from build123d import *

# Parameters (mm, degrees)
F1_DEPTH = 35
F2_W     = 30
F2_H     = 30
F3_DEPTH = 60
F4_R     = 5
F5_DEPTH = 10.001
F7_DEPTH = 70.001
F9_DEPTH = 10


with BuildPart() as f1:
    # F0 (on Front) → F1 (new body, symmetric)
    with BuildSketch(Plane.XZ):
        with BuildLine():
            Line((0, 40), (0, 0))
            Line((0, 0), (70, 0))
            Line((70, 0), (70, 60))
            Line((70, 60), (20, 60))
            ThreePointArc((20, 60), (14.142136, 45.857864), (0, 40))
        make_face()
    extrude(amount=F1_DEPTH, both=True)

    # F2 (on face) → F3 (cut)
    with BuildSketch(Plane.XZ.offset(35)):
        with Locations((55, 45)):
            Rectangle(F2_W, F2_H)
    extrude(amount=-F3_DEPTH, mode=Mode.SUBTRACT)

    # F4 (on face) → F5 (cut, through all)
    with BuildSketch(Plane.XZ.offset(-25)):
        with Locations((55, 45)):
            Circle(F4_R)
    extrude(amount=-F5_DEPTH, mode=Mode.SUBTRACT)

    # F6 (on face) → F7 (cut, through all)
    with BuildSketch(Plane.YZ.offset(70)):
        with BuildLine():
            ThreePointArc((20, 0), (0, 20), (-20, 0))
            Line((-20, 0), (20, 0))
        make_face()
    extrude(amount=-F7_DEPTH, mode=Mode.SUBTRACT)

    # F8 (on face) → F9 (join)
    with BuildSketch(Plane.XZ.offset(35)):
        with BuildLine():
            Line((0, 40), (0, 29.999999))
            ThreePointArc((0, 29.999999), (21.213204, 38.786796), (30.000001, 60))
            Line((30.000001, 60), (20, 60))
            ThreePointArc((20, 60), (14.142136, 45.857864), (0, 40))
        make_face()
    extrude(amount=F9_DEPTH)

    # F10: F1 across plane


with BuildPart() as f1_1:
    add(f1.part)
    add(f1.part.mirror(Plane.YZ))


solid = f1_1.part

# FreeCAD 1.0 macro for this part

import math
import FreeCAD as App
import Part
import Sketcher
Q = App.Units.Quantity

doc = App.newDocument("Part")
body = doc.addObject("PartDesign::Body", "Body")

sketch1 = body.newObject("Sketcher::SketchObject", "Sketch")
sketch1.AttachmentSupport = (doc.getObject("XZ_Plane"), [""])
sketch1.MapMode = "FlatFace"
sketch1.addGeometry([
    Part.LineSegment(App.Vector(0, 40, 0), App.Vector(0, 0, 0)),
    Part.LineSegment(App.Vector(0, 0, 0), App.Vector(70, 0, 0)),
    Part.LineSegment(App.Vector(70, 0, 0), App.Vector(70, 60, 0)),
    Part.LineSegment(App.Vector(70, 60, 0), App.Vector(20, 60, 0)),
    Part.ArcOfCircle(Part.Circle(App.Vector(0, 60, 0), App.Vector(0, 0, 1), 20), math.radians(-90), math.radians(0)),
], False)
sketch1.addConstraint([
    Sketcher.Constraint("Coincident", 0, 2, 1, 1),
    Sketcher.Constraint("Coincident", 1, 2, 2, 1),
    Sketcher.Constraint("Coincident", 2, 2, 3, 1),
    Sketcher.Constraint("Coincident", 3, 2, 4, 2),
    Sketcher.Constraint("Coincident", 4, 1, 0, 1),
    Sketcher.Constraint("Vertical", 0),
    Sketcher.Constraint("Horizontal", 1),
    Sketcher.Constraint("Vertical", 2),
    Sketcher.Constraint("Horizontal", 3),
    Sketcher.Constraint("Coincident", 0, 2, -1, 1),
    Sketcher.Constraint("PointOnObject", 4, 3, -2),
    Sketcher.Constraint("Horizontal", 4, 3, 2, 2),
    Sketcher.Constraint("Radius", 4, Q("19.999999 mm")),
    Sketcher.Constraint("DistanceX", 1, 1, 1, 2, Q("70 mm")),
    Sketcher.Constraint("DistanceY", 0, 2, 0, 1, Q("40 mm")),
])
pad1 = body.newObject("PartDesign::Pad", "Pad")
pad1.Profile = sketch1
pad1.Length = 70
pad1.Midplane = True

sketch2 = body.newObject("Sketcher::SketchObject", "Sketch001")
sketch2.AttachmentSupport = (doc.getObject("XZ_Plane"), [""])
sketch2.MapMode = "FlatFace"
sketch2.AttachmentOffset = App.Placement(App.Vector(0, 0, 35), App.Rotation())
sketch2.addGeometry([
    Part.LineSegment(App.Vector(40, 60, 0), App.Vector(40, 30, 0)),
    Part.LineSegment(App.Vector(40, 30, 0), App.Vector(70, 30, 0)),
    Part.LineSegment(App.Vector(70, 30, 0), App.Vector(70, 60, 0)),
    Part.LineSegment(App.Vector(70, 60, 0), App.Vector(40, 60, 0)),
], False)
sketch2.addConstraint([
    Sketcher.Constraint("Coincident", 0, 2, 1, 1),
    Sketcher.Constraint("Coincident", 1, 2, 2, 1),
    Sketcher.Constraint("Coincident", 2, 2, 3, 1),
    Sketcher.Constraint("Coincident", 3, 2, 0, 1),
    Sketcher.Constraint("Vertical", 0),
    Sketcher.Constraint("Horizontal", 1),
    Sketcher.Constraint("Vertical", 2),
    Sketcher.Constraint("Horizontal", 3),
    Sketcher.Constraint("Equal", 3, 0),
    Sketcher.Constraint("DistanceX", 1, 1, 1, 2, Q("30 mm")),
    Sketcher.Constraint("DistanceX", -1, 1, 0, 2, Q("40 mm")),
    Sketcher.Constraint("DistanceY", -1, 1, 0, 2, Q("30 mm")),
])
pocket1 = body.newObject("PartDesign::Pocket", "Pocket")
pocket1.Profile = sketch2
pocket1.Length = 60

sketch3 = body.newObject("Sketcher::SketchObject", "Sketch002")
sketch3.AttachmentSupport = (doc.getObject("XZ_Plane"), [""])
sketch3.MapMode = "FlatFace"
sketch3.AttachmentOffset = App.Placement(App.Vector(0, 0, -25), App.Rotation())
sketch3.addGeometry(Part.Circle(App.Vector(55, 45, 0), App.Vector(0, 0, 1), 5), False)
sketch3.addConstraint([
    Sketcher.Constraint("Diameter", 0, Q("10 mm")),
    Sketcher.Constraint("DistanceX", -1, 1, 0, 3, Q("55 mm")),
    Sketcher.Constraint("DistanceY", -1, 1, 0, 3, Q("45 mm")),
])
pocket2 = body.newObject("PartDesign::Pocket", "Pocket001")
pocket2.Profile = sketch3
pocket2.Type = "ThroughAll"

sketch4 = body.newObject("Sketcher::SketchObject", "Sketch003")
sketch4.AttachmentSupport = (doc.getObject("YZ_Plane"), [""])
sketch4.MapMode = "FlatFace"
sketch4.AttachmentOffset = App.Placement(App.Vector(0, 0, 70), App.Rotation())
sketch4.addGeometry([
    Part.ArcOfCircle(Part.Circle(App.Vector(0, 0, 0), App.Vector(0, 0, 1), 20), math.radians(0), math.radians(180)),
    Part.LineSegment(App.Vector(-20, 0, 0), App.Vector(20, 0, 0)),
], False)
sketch4.addConstraint([
    Sketcher.Constraint("Coincident", 0, 1, 1, 2),
    Sketcher.Constraint("Coincident", 1, 1, 0, 2),
    Sketcher.Constraint("Horizontal", 1),
    Sketcher.Constraint("Coincident", 0, 3, -1, 1),
    Sketcher.Constraint("PointOnObject", 0, 1, -1),
    Sketcher.Constraint("Radius", 0, Q("20 mm")),
])
pocket3 = body.newObject("PartDesign::Pocket", "Pocket002")
pocket3.Profile = sketch4
pocket3.Type = "ThroughAll"

sketch5 = body.newObject("Sketcher::SketchObject", "Sketch004")
sketch5.AttachmentSupport = (doc.getObject("XZ_Plane"), [""])
sketch5.MapMode = "FlatFace"
sketch5.AttachmentOffset = App.Placement(App.Vector(0, 0, 35), App.Rotation())
sketch5.addGeometry([
    Part.LineSegment(App.Vector(0, 40, 0), App.Vector(0, 30, 0)),
    Part.ArcOfCircle(Part.Circle(App.Vector(0, 60, 0), App.Vector(0, 0, 1), 30), math.radians(-90), math.radians(0)),
    Part.LineSegment(App.Vector(30, 60, 0), App.Vector(20, 60, 0)),
    Part.ArcOfCircle(Part.Circle(App.Vector(0, 60, 0), App.Vector(0, 0, 1), 20), math.radians(-90), math.radians(0)),
], False)
sketch5.addConstraint([
    Sketcher.Constraint("Coincident", 0, 2, 1, 1),
    Sketcher.Constraint("Coincident", 1, 2, 2, 1),
    Sketcher.Constraint("Coincident", 2, 2, 3, 2),
    Sketcher.Constraint("Coincident", 3, 1, 0, 1),
    Sketcher.Constraint("Vertical", 0),
    Sketcher.Constraint("Horizontal", 2),
    Sketcher.Constraint("Coincident", 3, 3, 1, 3),
    Sketcher.Constraint("PointOnObject", 1, 3, -2),
    Sketcher.Constraint("PointOnObject", 0, 2, -2),
    Sketcher.Constraint("Horizontal", 3, 3, 1, 2),
    Sketcher.Constraint("Radius", 1, Q("30.000001 mm")),
    Sketcher.Constraint("Radius", 3, Q("19.999999 mm")),
    Sketcher.Constraint("DistanceY", -1, 1, 1, 3, Q("60 mm")),
])
pad2 = body.newObject("PartDesign::Pad", "Pad001")
pad2.Profile = sketch5
pad2.Length = 10
body2 = doc.addObject("PartDesign::Body", "Body001")
doc.recompute()

body2.BaseFeature = body
doc.recompute()

mirroring = doc.addObject("Part::Mirroring", "Mirroring")
mirroring.Source = body
mirroring.Base = App.Vector(0, 0, 0)
mirroring.Normal = App.Vector(1, 0, 0)
body3 = doc.addObject("PartDesign::Body", "Body002")
body3.BaseFeature = mirroring
boolean = body2.newObject("PartDesign::Boolean", "Boolean")
boolean.Type = "Fuse"
boolean.addObjects([body3])
doc.recompute()
mirroring.Visibility = False

doc.recompute()
